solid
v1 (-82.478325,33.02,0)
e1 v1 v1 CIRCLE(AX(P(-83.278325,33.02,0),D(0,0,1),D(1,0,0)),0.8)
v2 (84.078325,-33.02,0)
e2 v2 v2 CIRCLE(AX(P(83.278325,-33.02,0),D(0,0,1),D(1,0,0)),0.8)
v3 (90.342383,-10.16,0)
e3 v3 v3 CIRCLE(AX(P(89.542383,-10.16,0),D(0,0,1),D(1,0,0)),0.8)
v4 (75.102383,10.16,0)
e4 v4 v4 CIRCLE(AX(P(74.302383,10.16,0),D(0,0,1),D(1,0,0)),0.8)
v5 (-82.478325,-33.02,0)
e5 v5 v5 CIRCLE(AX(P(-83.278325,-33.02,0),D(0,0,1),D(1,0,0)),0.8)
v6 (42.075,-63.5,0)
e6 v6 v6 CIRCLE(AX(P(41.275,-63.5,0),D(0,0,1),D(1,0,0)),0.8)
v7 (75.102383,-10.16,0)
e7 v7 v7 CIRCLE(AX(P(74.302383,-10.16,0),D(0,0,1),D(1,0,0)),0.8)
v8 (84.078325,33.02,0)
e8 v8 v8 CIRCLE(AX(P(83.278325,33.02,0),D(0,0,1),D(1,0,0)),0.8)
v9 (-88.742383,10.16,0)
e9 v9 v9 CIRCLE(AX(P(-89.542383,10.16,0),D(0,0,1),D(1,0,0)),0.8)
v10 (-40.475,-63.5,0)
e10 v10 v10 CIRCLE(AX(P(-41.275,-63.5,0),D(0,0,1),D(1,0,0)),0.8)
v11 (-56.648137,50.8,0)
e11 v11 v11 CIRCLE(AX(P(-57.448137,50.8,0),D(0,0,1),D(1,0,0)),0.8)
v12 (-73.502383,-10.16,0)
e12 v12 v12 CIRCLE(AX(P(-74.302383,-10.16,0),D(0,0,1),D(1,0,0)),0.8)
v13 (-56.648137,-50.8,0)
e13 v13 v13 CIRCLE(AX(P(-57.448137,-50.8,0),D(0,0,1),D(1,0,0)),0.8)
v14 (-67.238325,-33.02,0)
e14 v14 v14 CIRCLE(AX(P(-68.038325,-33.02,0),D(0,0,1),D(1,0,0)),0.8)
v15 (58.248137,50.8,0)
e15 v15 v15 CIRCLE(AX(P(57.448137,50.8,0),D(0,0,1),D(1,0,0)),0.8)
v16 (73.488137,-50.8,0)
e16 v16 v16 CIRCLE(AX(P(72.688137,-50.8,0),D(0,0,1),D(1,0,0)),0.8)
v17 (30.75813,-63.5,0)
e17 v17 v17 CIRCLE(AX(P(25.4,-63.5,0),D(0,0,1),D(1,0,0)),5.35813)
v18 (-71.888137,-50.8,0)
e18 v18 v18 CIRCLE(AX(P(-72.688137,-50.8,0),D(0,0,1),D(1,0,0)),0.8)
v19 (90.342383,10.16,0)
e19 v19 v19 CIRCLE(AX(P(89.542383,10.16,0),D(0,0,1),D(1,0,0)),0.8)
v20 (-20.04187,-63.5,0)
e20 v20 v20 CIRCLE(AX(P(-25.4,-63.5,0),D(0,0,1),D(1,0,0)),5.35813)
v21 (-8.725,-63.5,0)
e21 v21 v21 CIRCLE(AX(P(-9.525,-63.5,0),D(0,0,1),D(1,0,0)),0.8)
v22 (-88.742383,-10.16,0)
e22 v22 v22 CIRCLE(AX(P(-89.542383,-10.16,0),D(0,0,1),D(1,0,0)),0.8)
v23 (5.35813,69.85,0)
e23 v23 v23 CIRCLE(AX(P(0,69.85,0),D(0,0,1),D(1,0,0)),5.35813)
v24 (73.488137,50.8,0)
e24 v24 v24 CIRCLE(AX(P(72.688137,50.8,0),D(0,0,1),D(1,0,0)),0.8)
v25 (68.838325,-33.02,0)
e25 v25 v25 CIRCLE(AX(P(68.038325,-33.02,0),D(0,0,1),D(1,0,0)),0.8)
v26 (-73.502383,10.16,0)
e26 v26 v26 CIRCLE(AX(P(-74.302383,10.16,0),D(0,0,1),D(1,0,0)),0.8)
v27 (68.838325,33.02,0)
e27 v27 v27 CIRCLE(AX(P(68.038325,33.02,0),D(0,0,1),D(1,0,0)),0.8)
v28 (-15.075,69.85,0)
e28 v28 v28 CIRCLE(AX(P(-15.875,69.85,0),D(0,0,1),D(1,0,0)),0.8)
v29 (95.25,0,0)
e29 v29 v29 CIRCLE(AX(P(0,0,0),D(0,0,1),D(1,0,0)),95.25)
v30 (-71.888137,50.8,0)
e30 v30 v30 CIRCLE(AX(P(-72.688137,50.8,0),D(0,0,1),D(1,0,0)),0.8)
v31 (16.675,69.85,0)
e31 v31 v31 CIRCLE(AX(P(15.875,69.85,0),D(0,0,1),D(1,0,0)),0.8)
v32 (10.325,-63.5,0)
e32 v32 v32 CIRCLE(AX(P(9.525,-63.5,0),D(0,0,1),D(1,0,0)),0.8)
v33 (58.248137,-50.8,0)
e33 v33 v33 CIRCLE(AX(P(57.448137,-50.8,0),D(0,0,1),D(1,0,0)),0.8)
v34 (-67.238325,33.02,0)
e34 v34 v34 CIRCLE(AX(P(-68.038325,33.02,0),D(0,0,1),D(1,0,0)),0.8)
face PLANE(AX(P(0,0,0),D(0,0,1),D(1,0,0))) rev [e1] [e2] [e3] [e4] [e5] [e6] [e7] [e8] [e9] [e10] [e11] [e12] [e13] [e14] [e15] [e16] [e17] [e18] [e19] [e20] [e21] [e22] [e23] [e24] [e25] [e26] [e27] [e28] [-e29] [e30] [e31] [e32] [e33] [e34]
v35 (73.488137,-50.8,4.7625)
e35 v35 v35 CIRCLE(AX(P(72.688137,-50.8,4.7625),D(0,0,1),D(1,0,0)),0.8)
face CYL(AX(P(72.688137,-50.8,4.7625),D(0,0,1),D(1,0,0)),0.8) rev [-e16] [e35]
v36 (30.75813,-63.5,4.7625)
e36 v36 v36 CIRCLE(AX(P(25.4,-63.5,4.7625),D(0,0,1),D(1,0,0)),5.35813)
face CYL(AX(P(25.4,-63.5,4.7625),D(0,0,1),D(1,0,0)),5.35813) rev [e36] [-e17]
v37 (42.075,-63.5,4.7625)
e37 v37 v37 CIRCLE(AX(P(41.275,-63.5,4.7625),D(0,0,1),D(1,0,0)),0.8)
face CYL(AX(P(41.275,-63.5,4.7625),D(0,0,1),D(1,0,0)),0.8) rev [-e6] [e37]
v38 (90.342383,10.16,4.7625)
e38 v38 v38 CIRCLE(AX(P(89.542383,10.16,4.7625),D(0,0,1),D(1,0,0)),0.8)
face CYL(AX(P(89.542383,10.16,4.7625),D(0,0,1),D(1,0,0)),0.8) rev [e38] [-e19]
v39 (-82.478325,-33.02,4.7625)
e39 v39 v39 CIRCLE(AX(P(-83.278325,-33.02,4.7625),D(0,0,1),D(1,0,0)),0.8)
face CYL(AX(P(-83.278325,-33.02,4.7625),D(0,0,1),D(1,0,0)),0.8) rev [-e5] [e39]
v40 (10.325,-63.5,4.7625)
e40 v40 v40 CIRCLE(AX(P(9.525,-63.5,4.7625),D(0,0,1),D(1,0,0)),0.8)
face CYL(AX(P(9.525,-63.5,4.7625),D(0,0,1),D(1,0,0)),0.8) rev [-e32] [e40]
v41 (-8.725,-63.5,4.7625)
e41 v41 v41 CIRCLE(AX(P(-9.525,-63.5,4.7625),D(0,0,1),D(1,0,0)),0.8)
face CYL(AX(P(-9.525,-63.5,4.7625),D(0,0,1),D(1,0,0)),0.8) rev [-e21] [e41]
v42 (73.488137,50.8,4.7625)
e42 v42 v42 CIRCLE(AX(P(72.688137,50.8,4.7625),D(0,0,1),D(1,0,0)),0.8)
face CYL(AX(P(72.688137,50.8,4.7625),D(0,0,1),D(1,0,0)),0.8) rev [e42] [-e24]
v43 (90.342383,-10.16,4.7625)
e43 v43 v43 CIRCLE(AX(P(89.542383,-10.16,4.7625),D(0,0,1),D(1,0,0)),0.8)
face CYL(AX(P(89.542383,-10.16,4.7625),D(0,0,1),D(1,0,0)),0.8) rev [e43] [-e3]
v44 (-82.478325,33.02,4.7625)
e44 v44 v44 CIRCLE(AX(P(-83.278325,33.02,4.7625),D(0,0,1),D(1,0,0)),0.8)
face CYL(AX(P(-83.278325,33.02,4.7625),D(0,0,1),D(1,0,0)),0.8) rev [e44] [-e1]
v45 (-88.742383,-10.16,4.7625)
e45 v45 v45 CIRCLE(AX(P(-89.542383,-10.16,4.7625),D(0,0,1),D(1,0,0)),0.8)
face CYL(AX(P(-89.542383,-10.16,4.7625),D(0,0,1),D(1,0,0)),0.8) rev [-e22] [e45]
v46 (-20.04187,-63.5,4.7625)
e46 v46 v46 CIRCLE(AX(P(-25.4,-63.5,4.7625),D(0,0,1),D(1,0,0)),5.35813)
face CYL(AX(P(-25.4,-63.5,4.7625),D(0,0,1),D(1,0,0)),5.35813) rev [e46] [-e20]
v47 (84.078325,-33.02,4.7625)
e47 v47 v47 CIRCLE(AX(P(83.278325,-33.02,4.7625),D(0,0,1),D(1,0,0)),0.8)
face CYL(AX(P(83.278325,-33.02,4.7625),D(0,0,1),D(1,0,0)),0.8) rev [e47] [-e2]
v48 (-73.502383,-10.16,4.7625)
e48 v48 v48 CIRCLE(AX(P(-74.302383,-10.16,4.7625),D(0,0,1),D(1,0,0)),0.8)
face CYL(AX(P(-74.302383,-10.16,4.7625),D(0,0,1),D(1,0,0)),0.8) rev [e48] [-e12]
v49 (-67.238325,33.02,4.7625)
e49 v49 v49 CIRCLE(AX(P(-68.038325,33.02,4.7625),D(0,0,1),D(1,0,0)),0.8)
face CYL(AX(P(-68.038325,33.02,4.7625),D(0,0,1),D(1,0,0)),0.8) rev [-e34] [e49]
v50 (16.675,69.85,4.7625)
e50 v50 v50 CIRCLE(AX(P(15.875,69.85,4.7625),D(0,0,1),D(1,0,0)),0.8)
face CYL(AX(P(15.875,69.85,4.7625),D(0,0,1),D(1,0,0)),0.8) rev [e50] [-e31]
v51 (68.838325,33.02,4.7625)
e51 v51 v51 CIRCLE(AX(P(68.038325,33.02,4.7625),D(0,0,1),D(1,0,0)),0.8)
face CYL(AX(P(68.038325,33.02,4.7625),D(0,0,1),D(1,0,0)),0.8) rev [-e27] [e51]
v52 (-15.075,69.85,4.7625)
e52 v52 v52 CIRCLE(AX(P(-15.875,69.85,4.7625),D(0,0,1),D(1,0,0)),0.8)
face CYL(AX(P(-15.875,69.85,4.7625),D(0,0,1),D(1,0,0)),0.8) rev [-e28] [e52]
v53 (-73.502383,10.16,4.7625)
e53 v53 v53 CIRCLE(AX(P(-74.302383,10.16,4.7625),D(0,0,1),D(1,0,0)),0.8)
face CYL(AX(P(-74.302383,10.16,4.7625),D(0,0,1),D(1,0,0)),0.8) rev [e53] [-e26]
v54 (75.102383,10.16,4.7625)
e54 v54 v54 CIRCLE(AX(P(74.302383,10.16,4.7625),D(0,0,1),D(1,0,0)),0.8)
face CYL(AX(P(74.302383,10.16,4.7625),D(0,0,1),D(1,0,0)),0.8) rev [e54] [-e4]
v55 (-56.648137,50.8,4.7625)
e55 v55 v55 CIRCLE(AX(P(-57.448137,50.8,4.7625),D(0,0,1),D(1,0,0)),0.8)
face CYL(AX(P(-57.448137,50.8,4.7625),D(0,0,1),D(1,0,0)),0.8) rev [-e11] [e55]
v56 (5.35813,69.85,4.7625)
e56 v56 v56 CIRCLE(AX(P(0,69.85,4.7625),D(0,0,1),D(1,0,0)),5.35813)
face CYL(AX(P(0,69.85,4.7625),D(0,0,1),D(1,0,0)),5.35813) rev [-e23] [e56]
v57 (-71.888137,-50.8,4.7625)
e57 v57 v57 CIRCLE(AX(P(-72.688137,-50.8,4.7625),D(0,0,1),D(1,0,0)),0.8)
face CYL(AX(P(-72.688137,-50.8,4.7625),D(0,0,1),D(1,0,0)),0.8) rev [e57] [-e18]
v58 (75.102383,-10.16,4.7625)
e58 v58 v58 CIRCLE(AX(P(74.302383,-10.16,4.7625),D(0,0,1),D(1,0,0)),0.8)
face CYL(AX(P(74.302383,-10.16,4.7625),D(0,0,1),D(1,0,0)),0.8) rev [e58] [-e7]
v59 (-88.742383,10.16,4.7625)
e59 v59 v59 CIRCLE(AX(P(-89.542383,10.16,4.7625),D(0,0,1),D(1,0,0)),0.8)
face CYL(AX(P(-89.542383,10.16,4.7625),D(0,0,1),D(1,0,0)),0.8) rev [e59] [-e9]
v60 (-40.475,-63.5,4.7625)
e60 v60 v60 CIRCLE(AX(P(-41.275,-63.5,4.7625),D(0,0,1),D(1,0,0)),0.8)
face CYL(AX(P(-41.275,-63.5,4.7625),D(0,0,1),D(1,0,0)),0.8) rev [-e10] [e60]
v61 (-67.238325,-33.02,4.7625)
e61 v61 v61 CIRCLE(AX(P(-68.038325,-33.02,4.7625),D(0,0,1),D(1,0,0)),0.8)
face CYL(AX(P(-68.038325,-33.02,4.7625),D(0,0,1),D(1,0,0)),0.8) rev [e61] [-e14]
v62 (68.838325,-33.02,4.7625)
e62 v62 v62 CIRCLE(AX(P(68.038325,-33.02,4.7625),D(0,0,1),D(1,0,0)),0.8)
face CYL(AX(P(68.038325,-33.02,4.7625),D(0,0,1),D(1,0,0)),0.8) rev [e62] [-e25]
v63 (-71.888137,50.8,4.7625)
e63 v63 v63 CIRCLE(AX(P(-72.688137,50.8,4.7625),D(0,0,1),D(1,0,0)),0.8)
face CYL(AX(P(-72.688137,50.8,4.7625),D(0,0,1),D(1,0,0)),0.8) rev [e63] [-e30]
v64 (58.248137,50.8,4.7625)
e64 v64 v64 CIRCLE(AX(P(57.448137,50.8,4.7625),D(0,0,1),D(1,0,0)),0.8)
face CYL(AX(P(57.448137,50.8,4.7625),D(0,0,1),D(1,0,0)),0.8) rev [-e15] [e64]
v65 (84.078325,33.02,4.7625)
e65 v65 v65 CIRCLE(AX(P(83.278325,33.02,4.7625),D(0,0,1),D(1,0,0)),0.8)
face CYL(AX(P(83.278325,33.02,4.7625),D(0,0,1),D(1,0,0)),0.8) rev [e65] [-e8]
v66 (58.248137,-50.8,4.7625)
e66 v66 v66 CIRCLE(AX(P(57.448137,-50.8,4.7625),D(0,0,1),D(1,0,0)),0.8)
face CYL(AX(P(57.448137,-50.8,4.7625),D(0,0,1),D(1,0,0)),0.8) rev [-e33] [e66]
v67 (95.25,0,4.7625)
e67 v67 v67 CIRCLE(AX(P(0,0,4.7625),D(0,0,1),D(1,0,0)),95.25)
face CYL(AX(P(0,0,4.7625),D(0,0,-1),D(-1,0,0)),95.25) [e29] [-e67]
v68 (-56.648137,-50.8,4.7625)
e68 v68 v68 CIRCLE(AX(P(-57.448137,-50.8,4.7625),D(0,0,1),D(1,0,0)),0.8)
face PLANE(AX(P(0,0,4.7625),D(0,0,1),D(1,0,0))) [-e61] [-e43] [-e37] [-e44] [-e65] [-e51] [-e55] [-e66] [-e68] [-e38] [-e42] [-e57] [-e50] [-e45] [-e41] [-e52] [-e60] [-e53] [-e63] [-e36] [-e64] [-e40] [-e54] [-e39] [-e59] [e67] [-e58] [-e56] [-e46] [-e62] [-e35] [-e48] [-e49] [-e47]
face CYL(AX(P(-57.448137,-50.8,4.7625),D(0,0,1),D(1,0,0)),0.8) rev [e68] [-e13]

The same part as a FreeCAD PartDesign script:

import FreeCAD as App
import Part
import Sketcher

V = App.Vector
Q = App.Units.Quantity

doc = App.newDocument("Part")
params = doc.addObject("Spreadsheet::Sheet", "Params")
for row, (alias, value) in enumerate([
    ("sketch1_diameter", "7.5 in"),
    ("pad1_length", "0.1875 in"),
    ("hole_diameter", "1.6 mm"),
    ("hole_depth", "0.21 in"),
    ("hole2_diameter", "1.6 mm"),
    ("hole2_depth", "0.21 in"),
    ("hole3_diameter", "0.4219 in"),
    ("hole3_depth", "1.23 in"),
], start=1):
    params.set(f"A{row}", alias)
    params.set(f"B{row}", "=" + value)
    params.setAlias(f"B{row}", alias)

body = doc.addObject("PartDesign::Body", "Body")

# Sketch on XY plane
sketch1 = body.newObject("Sketcher::SketchObject", "Sketch")
sketch1.AttachmentSupport = (doc.getObject("XY_Plane"), [""])
sketch1.MapMode = "FlatFace"
sketch1.addGeometry(Part.Circle(V(0, 0, 0), V(0, 0, 1), 95.25), False)
sketch1.addConstraint([
    Sketcher.Constraint("Coincident", 0, 3, -1, 1),
    Sketcher.Constraint("Diameter", 0, Q("7.5 in")),
])
sketch1.setExpression("Constraints[1]", "Params.sketch1_diameter")
pad1 = body.newObject("PartDesign::Pad", "Pad")
pad1.Profile = sketch1
pad1.setExpression("Length", "Params.pad1_length")

# Sketch on XY plane
sketch2 = body.newObject("Sketcher::SketchObject", "Sketch001")
sketch2.AttachmentSupport = (doc.getObject("XY_Plane"), [""])
sketch2.MapMode = "FlatFace"
sketch2.AttachmentOffset = App.Placement(V(0, 0, 0.1875 * 25.4), App.Rotation())
sketch2.addGeometry([
    Part.Circle(V(-83.278325, 33.02, 0), V(0, 0, 1), 0.8),  # 0
    Part.Circle(V(-68.038325, 33.02, 0), V(0, 0, 1), 0.8),  # 1
    Part.Circle(V(-72.688137, 50.8, 0), V(0, 0, 1), 0.8),  # 2
    Part.Circle(V(-57.448137, 50.8, 0), V(0, 0, 1), 0.8),  # 3
    Part.Circle(V(-89.542383, 10.16, 0), V(0, 0, 1), 0.8),  # 4
    Part.Circle(V(-74.302383, 10.16, 0), V(0, 0, 1), 0.8),  # 5
    Part.Circle(V(-57.448137, -50.8, 0), V(0, 0, 1), 0.8),  # 6
    Part.Circle(V(-72.688137, -50.8, 0), V(0, 0, 1), 0.8),  # 7
    Part.Circle(V(-68.038325, -33.02, 0), V(0, 0, 1), 0.8),  # 8
    Part.Circle(V(-83.278325, -33.02, 0), V(0, 0, 1), 0.8),  # 9
    Part.Circle(V(-74.302383, -10.16, 0), V(0, 0, 1), 0.8),  # 10
    Part.Circle(V(-89.542383, -10.16, 0), V(0, 0, 1), 0.8),  # 11
    Part.Circle(V(57.448137, -50.8, 0), V(0, 0, 1), 0.8),  # 12
    Part.Circle(V(72.688137, -50.8, 0), V(0, 0, 1), 0.8),  # 13
    Part.Circle(V(68.038325, -33.02, 0), V(0, 0, 1), 0.8),  # 14
    Part.Circle(V(83.278325, -33.02, 0), V(0, 0, 1), 0.8),  # 15
    Part.Circle(V(89.542383, -10.16, 0), V(0, 0, 1), 0.8),  # 16
    Part.Circle(V(74.302383, -10.16, 0), V(0, 0, 1), 0.8),  # 17
    Part.Circle(V(89.542383, 10.16, 0), V(0, 0, 1), 0.8),  # 18
    Part.Circle(V(74.302383, 10.16, 0), V(0, 0, 1), 0.8),  # 19
    Part.Circle(V(83.278325, 33.02, 0), V(0, 0, 1), 0.8),  # 20
    Part.Circle(V(68.038325, 33.02, 0), V(0, 0, 1), 0.8),  # 21
    Part.Circle(V(57.448137, 50.8, 0), V(0, 0, 1), 0.8),  # 22
    Part.Circle(V(72.688137, 50.8, 0), V(0, 0, 1), 0.8),  # 23
], False)
sketch2.addConstraint([
    Sketcher.Constraint("Equal", 0, 1),
    Sketcher.Constraint("Equal", 1, 2),
    Sketcher.Constraint("Equal", 2, 3),
    Sketcher.Constraint("Equal", 3, 4),
    Sketcher.Constraint("Equal", 4, 5),
    Sketcher.Constraint("Equal", 5, 6),
    Sketcher.Constraint("Equal", 6, 7),
    Sketcher.Constraint("Equal", 7, 8),
    Sketcher.Constraint("Equal", 8, 9),
    Sketcher.Constraint("Equal", 9, 10),
    Sketcher.Constraint("Equal", 10, 11),
    Sketcher.Constraint("Equal", 11, 12),
    Sketcher.Constraint("Equal", 12, 13),
    Sketcher.Constraint("Equal", 13, 14),
    Sketcher.Constraint("Equal", 14, 15),
    Sketcher.Constraint("Equal", 15, 16),
    Sketcher.Constraint("Equal", 16, 17),
    Sketcher.Constraint("Equal", 17, 18),
    Sketcher.Constraint("Equal", 18, 19),
    Sketcher.Constraint("Equal", 19, 20),
    Sketcher.Constraint("Equal", 20, 21),
    Sketcher.Constraint("Equal", 21, 22),
    Sketcher.Constraint("Equal", 22, 23),
    Sketcher.Constraint("Symmetric", 3, 3, 12, 3, -1, 1),
    Sketcher.Constraint("Symmetric", 2, 3, 13, 3, -1, 1),
    Sketcher.Constraint("Symmetric", 1, 3, 14, 3, -1, 1),
    Sketcher.Constraint("Symmetric", 0, 3, 15, 3, -1, 1),
    Sketcher.Constraint("Symmetric", 4, 3, 16, 3, -1, 1),
    Sketcher.Constraint("Symmetric", 5, 3, 17, 3, -1, 1),
    Sketcher.Constraint("Symmetric", 11, 3, 18, 3, -1, 1),
    Sketcher.Constraint("Symmetric", 10, 3, 19, 3, -1, 1),
    Sketcher.Constraint("Symmetric", 9, 3, 20, 3, -1, 1),
    Sketcher.Constraint("Symmetric", 8, 3, 21, 3, -1, 1),
    Sketcher.Constraint("Symmetric", 6, 3, 22, 3, -1, 1),
    Sketcher.Constraint("Symmetric", 7, 3, 23, 3, -1, 1),
    Sketcher.Constraint("Symmetric", 6, 3, 12, 3, -2),
    Sketcher.Constraint("Symmetric", 7, 3, 13, 3, -2),
    Sketcher.Constraint("Symmetric", 8, 3, 14, 3, -2),
    Sketcher.Constraint("Symmetric", 9, 3, 15, 3, -2),
    Sketcher.Constraint("Symmetric", 11, 3, 16, 3, -2),
    Sketcher.Constraint("Symmetric", 10, 3, 17, 3, -2),
    Sketcher.Constraint("Horizontal", 0, 3, 1, 3),
    Sketcher.Constraint("Horizontal", 2, 3, 3, 3),
    Sketcher.Constraint("Horizontal", 4, 3, 5, 3),
    Sketcher.Constraint("DistanceY", -1, 1, 2, 3, Q("2 in")),
    Sketcher.Constraint("DistanceY", -1, 1, 0, 3, Q("1.3 in")),
    Sketcher.Constraint("DistanceY", -1, 1, 4, 3, Q("0.4 in")),
    Sketcher.Constraint("DistanceX", 0, 3, 1, 3, Q("0.6 in")),
    Sketcher.Constraint("DistanceX", 2, 3, 3, 3, Q("0.6 in")),
    Sketcher.Constraint("DistanceX", 4, 3, 5, 3, Q("0.6 in")),
    Sketcher.Constraint("Diameter", 0, Q("1.6 mm")),
    Sketcher.Constraint("DistanceX", 4, 3, 0, 3, Q("6.264059 mm")),
    Sketcher.Constraint("DistanceX", 10, 3, 12, 3, Q("131.750521 mm")),
    Sketcher.Constraint("DistanceX", 8, 3, 14, 3, Q("136.076649 mm")),
])
doc.recompute()
hole = body.newObject("PartDesign::Hole", "Hole")
hole.Profile = sketch2
hole.ThreadType = "None"
hole.setExpression("Diameter", "Params.hole_diameter")
hole.DepthType = "Dimension"
hole.setExpression("Depth", "Params.hole_depth")
hole.DrillPoint = "Flat"

# Sketch on XY plane
sketch3 = body.newObject("Sketcher::SketchObject", "Sketch002")
sketch3.AttachmentSupport = (doc.getObject("XY_Plane"), [""])
sketch3.MapMode = "FlatFace"
sketch3.AttachmentOffset = App.Placement(V(0, 0, 0.1875 * 25.4), App.Rotation())
sketch3.addGeometry([
    Part.Circle(V(-41.275, -63.5, 0), V(0, 0, 1), 0.8),  # 0
    Part.Circle(V(-9.525, -63.5, 0), V(0, 0, 1), 0.8),  # 1
    Part.Circle(V(9.525, -63.5, 0), V(0, 0, 1), 0.8),  # 2
    Part.Circle(V(41.275, -63.5, 0), V(0, 0, 1), 0.8),  # 3
    Part.Circle(V(-15.875, 69.85, 0), V(0, 0, 1), 0.8),  # 4
    Part.Circle(V(15.875, 69.85, 0), V(0, 0, 1), 0.8),  # 5
], False)
sketch3.addConstraint([
    Sketcher.Constraint("Equal", 0, 1),
    Sketcher.Constraint("Equal", 1, 2),
    Sketcher.Constraint("Equal", 2, 3),
    Sketcher.Constraint("Equal", 3, 4),
    Sketcher.Constraint("Equal", 4, 5),
    Sketcher.Constraint("Symmetric", 1, 3, 2, 3, -2),
    Sketcher.Constraint("Symmetric", 0, 3, 3, 3, -2),
    Sketcher.Constraint("Symmetric", 4, 3, 5, 3, -2),
    Sketcher.Constraint("Horizontal", 0, 3, 1, 3),
    Sketcher.Constraint("DistanceX", 0, 3, 2, 3, Q("2 in")),
    Sketcher.Constraint("DistanceX", 0, 3, 4, 3, Q("1 in")),
    Sketcher.Constraint("DistanceY", 0, 3, -1, 1, Q("2.5 in")),
    Sketcher.Constraint("Diameter", 0, Q("1.6 mm")),
    Sketcher.Constraint("DistanceY", -1, 1, 4, 3, Q("2.75 in")),
    Sketcher.Constraint("DistanceX", 0, 3, 1, 3, Q("1.25 in")),
])
doc.recompute()
hole2 = body.newObject("PartDesign::Hole", "Hole001")
hole2.Profile = sketch3
hole2.ThreadType = "None"
hole2.setExpression("Diameter", "Params.hole2_diameter")
hole2.DepthType = "Dimension"
hole2.setExpression("Depth", "Params.hole2_depth")
hole2.DrillPoint = "Flat"

# Sketch on XY plane
sketch4 = body.newObject("Sketcher::SketchObject", "Sketch003")
sketch4.AttachmentSupport = (doc.getObject("XY_Plane"), [""])
sketch4.MapMode = "FlatFace"
sketch4.AttachmentOffset = App.Placement(V(0, 0, 0.1875 * 25.4), App.Rotation())
sketch4.addGeometry([
    Part.Circle(V(0, 69.85, 0), V(0, 0, 1), 5.35813),
    Part.Circle(V(-25.4, -63.5, 0), V(0, 0, 1), 5.35813),
    Part.Circle(V(25.4, -63.5, 0), V(0, 0, 1), 5.35813),
], False)
sketch4.addConstraint([
    Sketcher.Constraint("Equal", 0, 1),
    Sketcher.Constraint("Equal", 1, 2),
    Sketcher.Constraint("Symmetric", 1, 3, 2, 3, -2),
    Sketcher.Constraint("PointOnObject", 0, 3, -2),
    Sketcher.Constraint("DistanceX", 1, 3, -1, 1, Q("1 in")),
    Sketcher.Constraint("Diameter", 0, Q("0.4219 in")),
    Sketcher.Constraint("DistanceY", 1, 3, -1, 1, Q("2.5 in")),
    Sketcher.Constraint("DistanceY", -1, 1, 0, 3, Q("2.75 in")),
])
doc.recompute()
hole3 = body.newObject("PartDesign::Hole", "Hole002")
hole3.Profile = sketch4
hole3.ThreadType = "None"
hole3.setExpression("Diameter", "Params.hole3_diameter")
hole3.DepthType = "Dimension"
hole3.setExpression("Depth", "Params.hole3_depth")
hole3.DrillPoint = "Flat"

doc.recompute()
